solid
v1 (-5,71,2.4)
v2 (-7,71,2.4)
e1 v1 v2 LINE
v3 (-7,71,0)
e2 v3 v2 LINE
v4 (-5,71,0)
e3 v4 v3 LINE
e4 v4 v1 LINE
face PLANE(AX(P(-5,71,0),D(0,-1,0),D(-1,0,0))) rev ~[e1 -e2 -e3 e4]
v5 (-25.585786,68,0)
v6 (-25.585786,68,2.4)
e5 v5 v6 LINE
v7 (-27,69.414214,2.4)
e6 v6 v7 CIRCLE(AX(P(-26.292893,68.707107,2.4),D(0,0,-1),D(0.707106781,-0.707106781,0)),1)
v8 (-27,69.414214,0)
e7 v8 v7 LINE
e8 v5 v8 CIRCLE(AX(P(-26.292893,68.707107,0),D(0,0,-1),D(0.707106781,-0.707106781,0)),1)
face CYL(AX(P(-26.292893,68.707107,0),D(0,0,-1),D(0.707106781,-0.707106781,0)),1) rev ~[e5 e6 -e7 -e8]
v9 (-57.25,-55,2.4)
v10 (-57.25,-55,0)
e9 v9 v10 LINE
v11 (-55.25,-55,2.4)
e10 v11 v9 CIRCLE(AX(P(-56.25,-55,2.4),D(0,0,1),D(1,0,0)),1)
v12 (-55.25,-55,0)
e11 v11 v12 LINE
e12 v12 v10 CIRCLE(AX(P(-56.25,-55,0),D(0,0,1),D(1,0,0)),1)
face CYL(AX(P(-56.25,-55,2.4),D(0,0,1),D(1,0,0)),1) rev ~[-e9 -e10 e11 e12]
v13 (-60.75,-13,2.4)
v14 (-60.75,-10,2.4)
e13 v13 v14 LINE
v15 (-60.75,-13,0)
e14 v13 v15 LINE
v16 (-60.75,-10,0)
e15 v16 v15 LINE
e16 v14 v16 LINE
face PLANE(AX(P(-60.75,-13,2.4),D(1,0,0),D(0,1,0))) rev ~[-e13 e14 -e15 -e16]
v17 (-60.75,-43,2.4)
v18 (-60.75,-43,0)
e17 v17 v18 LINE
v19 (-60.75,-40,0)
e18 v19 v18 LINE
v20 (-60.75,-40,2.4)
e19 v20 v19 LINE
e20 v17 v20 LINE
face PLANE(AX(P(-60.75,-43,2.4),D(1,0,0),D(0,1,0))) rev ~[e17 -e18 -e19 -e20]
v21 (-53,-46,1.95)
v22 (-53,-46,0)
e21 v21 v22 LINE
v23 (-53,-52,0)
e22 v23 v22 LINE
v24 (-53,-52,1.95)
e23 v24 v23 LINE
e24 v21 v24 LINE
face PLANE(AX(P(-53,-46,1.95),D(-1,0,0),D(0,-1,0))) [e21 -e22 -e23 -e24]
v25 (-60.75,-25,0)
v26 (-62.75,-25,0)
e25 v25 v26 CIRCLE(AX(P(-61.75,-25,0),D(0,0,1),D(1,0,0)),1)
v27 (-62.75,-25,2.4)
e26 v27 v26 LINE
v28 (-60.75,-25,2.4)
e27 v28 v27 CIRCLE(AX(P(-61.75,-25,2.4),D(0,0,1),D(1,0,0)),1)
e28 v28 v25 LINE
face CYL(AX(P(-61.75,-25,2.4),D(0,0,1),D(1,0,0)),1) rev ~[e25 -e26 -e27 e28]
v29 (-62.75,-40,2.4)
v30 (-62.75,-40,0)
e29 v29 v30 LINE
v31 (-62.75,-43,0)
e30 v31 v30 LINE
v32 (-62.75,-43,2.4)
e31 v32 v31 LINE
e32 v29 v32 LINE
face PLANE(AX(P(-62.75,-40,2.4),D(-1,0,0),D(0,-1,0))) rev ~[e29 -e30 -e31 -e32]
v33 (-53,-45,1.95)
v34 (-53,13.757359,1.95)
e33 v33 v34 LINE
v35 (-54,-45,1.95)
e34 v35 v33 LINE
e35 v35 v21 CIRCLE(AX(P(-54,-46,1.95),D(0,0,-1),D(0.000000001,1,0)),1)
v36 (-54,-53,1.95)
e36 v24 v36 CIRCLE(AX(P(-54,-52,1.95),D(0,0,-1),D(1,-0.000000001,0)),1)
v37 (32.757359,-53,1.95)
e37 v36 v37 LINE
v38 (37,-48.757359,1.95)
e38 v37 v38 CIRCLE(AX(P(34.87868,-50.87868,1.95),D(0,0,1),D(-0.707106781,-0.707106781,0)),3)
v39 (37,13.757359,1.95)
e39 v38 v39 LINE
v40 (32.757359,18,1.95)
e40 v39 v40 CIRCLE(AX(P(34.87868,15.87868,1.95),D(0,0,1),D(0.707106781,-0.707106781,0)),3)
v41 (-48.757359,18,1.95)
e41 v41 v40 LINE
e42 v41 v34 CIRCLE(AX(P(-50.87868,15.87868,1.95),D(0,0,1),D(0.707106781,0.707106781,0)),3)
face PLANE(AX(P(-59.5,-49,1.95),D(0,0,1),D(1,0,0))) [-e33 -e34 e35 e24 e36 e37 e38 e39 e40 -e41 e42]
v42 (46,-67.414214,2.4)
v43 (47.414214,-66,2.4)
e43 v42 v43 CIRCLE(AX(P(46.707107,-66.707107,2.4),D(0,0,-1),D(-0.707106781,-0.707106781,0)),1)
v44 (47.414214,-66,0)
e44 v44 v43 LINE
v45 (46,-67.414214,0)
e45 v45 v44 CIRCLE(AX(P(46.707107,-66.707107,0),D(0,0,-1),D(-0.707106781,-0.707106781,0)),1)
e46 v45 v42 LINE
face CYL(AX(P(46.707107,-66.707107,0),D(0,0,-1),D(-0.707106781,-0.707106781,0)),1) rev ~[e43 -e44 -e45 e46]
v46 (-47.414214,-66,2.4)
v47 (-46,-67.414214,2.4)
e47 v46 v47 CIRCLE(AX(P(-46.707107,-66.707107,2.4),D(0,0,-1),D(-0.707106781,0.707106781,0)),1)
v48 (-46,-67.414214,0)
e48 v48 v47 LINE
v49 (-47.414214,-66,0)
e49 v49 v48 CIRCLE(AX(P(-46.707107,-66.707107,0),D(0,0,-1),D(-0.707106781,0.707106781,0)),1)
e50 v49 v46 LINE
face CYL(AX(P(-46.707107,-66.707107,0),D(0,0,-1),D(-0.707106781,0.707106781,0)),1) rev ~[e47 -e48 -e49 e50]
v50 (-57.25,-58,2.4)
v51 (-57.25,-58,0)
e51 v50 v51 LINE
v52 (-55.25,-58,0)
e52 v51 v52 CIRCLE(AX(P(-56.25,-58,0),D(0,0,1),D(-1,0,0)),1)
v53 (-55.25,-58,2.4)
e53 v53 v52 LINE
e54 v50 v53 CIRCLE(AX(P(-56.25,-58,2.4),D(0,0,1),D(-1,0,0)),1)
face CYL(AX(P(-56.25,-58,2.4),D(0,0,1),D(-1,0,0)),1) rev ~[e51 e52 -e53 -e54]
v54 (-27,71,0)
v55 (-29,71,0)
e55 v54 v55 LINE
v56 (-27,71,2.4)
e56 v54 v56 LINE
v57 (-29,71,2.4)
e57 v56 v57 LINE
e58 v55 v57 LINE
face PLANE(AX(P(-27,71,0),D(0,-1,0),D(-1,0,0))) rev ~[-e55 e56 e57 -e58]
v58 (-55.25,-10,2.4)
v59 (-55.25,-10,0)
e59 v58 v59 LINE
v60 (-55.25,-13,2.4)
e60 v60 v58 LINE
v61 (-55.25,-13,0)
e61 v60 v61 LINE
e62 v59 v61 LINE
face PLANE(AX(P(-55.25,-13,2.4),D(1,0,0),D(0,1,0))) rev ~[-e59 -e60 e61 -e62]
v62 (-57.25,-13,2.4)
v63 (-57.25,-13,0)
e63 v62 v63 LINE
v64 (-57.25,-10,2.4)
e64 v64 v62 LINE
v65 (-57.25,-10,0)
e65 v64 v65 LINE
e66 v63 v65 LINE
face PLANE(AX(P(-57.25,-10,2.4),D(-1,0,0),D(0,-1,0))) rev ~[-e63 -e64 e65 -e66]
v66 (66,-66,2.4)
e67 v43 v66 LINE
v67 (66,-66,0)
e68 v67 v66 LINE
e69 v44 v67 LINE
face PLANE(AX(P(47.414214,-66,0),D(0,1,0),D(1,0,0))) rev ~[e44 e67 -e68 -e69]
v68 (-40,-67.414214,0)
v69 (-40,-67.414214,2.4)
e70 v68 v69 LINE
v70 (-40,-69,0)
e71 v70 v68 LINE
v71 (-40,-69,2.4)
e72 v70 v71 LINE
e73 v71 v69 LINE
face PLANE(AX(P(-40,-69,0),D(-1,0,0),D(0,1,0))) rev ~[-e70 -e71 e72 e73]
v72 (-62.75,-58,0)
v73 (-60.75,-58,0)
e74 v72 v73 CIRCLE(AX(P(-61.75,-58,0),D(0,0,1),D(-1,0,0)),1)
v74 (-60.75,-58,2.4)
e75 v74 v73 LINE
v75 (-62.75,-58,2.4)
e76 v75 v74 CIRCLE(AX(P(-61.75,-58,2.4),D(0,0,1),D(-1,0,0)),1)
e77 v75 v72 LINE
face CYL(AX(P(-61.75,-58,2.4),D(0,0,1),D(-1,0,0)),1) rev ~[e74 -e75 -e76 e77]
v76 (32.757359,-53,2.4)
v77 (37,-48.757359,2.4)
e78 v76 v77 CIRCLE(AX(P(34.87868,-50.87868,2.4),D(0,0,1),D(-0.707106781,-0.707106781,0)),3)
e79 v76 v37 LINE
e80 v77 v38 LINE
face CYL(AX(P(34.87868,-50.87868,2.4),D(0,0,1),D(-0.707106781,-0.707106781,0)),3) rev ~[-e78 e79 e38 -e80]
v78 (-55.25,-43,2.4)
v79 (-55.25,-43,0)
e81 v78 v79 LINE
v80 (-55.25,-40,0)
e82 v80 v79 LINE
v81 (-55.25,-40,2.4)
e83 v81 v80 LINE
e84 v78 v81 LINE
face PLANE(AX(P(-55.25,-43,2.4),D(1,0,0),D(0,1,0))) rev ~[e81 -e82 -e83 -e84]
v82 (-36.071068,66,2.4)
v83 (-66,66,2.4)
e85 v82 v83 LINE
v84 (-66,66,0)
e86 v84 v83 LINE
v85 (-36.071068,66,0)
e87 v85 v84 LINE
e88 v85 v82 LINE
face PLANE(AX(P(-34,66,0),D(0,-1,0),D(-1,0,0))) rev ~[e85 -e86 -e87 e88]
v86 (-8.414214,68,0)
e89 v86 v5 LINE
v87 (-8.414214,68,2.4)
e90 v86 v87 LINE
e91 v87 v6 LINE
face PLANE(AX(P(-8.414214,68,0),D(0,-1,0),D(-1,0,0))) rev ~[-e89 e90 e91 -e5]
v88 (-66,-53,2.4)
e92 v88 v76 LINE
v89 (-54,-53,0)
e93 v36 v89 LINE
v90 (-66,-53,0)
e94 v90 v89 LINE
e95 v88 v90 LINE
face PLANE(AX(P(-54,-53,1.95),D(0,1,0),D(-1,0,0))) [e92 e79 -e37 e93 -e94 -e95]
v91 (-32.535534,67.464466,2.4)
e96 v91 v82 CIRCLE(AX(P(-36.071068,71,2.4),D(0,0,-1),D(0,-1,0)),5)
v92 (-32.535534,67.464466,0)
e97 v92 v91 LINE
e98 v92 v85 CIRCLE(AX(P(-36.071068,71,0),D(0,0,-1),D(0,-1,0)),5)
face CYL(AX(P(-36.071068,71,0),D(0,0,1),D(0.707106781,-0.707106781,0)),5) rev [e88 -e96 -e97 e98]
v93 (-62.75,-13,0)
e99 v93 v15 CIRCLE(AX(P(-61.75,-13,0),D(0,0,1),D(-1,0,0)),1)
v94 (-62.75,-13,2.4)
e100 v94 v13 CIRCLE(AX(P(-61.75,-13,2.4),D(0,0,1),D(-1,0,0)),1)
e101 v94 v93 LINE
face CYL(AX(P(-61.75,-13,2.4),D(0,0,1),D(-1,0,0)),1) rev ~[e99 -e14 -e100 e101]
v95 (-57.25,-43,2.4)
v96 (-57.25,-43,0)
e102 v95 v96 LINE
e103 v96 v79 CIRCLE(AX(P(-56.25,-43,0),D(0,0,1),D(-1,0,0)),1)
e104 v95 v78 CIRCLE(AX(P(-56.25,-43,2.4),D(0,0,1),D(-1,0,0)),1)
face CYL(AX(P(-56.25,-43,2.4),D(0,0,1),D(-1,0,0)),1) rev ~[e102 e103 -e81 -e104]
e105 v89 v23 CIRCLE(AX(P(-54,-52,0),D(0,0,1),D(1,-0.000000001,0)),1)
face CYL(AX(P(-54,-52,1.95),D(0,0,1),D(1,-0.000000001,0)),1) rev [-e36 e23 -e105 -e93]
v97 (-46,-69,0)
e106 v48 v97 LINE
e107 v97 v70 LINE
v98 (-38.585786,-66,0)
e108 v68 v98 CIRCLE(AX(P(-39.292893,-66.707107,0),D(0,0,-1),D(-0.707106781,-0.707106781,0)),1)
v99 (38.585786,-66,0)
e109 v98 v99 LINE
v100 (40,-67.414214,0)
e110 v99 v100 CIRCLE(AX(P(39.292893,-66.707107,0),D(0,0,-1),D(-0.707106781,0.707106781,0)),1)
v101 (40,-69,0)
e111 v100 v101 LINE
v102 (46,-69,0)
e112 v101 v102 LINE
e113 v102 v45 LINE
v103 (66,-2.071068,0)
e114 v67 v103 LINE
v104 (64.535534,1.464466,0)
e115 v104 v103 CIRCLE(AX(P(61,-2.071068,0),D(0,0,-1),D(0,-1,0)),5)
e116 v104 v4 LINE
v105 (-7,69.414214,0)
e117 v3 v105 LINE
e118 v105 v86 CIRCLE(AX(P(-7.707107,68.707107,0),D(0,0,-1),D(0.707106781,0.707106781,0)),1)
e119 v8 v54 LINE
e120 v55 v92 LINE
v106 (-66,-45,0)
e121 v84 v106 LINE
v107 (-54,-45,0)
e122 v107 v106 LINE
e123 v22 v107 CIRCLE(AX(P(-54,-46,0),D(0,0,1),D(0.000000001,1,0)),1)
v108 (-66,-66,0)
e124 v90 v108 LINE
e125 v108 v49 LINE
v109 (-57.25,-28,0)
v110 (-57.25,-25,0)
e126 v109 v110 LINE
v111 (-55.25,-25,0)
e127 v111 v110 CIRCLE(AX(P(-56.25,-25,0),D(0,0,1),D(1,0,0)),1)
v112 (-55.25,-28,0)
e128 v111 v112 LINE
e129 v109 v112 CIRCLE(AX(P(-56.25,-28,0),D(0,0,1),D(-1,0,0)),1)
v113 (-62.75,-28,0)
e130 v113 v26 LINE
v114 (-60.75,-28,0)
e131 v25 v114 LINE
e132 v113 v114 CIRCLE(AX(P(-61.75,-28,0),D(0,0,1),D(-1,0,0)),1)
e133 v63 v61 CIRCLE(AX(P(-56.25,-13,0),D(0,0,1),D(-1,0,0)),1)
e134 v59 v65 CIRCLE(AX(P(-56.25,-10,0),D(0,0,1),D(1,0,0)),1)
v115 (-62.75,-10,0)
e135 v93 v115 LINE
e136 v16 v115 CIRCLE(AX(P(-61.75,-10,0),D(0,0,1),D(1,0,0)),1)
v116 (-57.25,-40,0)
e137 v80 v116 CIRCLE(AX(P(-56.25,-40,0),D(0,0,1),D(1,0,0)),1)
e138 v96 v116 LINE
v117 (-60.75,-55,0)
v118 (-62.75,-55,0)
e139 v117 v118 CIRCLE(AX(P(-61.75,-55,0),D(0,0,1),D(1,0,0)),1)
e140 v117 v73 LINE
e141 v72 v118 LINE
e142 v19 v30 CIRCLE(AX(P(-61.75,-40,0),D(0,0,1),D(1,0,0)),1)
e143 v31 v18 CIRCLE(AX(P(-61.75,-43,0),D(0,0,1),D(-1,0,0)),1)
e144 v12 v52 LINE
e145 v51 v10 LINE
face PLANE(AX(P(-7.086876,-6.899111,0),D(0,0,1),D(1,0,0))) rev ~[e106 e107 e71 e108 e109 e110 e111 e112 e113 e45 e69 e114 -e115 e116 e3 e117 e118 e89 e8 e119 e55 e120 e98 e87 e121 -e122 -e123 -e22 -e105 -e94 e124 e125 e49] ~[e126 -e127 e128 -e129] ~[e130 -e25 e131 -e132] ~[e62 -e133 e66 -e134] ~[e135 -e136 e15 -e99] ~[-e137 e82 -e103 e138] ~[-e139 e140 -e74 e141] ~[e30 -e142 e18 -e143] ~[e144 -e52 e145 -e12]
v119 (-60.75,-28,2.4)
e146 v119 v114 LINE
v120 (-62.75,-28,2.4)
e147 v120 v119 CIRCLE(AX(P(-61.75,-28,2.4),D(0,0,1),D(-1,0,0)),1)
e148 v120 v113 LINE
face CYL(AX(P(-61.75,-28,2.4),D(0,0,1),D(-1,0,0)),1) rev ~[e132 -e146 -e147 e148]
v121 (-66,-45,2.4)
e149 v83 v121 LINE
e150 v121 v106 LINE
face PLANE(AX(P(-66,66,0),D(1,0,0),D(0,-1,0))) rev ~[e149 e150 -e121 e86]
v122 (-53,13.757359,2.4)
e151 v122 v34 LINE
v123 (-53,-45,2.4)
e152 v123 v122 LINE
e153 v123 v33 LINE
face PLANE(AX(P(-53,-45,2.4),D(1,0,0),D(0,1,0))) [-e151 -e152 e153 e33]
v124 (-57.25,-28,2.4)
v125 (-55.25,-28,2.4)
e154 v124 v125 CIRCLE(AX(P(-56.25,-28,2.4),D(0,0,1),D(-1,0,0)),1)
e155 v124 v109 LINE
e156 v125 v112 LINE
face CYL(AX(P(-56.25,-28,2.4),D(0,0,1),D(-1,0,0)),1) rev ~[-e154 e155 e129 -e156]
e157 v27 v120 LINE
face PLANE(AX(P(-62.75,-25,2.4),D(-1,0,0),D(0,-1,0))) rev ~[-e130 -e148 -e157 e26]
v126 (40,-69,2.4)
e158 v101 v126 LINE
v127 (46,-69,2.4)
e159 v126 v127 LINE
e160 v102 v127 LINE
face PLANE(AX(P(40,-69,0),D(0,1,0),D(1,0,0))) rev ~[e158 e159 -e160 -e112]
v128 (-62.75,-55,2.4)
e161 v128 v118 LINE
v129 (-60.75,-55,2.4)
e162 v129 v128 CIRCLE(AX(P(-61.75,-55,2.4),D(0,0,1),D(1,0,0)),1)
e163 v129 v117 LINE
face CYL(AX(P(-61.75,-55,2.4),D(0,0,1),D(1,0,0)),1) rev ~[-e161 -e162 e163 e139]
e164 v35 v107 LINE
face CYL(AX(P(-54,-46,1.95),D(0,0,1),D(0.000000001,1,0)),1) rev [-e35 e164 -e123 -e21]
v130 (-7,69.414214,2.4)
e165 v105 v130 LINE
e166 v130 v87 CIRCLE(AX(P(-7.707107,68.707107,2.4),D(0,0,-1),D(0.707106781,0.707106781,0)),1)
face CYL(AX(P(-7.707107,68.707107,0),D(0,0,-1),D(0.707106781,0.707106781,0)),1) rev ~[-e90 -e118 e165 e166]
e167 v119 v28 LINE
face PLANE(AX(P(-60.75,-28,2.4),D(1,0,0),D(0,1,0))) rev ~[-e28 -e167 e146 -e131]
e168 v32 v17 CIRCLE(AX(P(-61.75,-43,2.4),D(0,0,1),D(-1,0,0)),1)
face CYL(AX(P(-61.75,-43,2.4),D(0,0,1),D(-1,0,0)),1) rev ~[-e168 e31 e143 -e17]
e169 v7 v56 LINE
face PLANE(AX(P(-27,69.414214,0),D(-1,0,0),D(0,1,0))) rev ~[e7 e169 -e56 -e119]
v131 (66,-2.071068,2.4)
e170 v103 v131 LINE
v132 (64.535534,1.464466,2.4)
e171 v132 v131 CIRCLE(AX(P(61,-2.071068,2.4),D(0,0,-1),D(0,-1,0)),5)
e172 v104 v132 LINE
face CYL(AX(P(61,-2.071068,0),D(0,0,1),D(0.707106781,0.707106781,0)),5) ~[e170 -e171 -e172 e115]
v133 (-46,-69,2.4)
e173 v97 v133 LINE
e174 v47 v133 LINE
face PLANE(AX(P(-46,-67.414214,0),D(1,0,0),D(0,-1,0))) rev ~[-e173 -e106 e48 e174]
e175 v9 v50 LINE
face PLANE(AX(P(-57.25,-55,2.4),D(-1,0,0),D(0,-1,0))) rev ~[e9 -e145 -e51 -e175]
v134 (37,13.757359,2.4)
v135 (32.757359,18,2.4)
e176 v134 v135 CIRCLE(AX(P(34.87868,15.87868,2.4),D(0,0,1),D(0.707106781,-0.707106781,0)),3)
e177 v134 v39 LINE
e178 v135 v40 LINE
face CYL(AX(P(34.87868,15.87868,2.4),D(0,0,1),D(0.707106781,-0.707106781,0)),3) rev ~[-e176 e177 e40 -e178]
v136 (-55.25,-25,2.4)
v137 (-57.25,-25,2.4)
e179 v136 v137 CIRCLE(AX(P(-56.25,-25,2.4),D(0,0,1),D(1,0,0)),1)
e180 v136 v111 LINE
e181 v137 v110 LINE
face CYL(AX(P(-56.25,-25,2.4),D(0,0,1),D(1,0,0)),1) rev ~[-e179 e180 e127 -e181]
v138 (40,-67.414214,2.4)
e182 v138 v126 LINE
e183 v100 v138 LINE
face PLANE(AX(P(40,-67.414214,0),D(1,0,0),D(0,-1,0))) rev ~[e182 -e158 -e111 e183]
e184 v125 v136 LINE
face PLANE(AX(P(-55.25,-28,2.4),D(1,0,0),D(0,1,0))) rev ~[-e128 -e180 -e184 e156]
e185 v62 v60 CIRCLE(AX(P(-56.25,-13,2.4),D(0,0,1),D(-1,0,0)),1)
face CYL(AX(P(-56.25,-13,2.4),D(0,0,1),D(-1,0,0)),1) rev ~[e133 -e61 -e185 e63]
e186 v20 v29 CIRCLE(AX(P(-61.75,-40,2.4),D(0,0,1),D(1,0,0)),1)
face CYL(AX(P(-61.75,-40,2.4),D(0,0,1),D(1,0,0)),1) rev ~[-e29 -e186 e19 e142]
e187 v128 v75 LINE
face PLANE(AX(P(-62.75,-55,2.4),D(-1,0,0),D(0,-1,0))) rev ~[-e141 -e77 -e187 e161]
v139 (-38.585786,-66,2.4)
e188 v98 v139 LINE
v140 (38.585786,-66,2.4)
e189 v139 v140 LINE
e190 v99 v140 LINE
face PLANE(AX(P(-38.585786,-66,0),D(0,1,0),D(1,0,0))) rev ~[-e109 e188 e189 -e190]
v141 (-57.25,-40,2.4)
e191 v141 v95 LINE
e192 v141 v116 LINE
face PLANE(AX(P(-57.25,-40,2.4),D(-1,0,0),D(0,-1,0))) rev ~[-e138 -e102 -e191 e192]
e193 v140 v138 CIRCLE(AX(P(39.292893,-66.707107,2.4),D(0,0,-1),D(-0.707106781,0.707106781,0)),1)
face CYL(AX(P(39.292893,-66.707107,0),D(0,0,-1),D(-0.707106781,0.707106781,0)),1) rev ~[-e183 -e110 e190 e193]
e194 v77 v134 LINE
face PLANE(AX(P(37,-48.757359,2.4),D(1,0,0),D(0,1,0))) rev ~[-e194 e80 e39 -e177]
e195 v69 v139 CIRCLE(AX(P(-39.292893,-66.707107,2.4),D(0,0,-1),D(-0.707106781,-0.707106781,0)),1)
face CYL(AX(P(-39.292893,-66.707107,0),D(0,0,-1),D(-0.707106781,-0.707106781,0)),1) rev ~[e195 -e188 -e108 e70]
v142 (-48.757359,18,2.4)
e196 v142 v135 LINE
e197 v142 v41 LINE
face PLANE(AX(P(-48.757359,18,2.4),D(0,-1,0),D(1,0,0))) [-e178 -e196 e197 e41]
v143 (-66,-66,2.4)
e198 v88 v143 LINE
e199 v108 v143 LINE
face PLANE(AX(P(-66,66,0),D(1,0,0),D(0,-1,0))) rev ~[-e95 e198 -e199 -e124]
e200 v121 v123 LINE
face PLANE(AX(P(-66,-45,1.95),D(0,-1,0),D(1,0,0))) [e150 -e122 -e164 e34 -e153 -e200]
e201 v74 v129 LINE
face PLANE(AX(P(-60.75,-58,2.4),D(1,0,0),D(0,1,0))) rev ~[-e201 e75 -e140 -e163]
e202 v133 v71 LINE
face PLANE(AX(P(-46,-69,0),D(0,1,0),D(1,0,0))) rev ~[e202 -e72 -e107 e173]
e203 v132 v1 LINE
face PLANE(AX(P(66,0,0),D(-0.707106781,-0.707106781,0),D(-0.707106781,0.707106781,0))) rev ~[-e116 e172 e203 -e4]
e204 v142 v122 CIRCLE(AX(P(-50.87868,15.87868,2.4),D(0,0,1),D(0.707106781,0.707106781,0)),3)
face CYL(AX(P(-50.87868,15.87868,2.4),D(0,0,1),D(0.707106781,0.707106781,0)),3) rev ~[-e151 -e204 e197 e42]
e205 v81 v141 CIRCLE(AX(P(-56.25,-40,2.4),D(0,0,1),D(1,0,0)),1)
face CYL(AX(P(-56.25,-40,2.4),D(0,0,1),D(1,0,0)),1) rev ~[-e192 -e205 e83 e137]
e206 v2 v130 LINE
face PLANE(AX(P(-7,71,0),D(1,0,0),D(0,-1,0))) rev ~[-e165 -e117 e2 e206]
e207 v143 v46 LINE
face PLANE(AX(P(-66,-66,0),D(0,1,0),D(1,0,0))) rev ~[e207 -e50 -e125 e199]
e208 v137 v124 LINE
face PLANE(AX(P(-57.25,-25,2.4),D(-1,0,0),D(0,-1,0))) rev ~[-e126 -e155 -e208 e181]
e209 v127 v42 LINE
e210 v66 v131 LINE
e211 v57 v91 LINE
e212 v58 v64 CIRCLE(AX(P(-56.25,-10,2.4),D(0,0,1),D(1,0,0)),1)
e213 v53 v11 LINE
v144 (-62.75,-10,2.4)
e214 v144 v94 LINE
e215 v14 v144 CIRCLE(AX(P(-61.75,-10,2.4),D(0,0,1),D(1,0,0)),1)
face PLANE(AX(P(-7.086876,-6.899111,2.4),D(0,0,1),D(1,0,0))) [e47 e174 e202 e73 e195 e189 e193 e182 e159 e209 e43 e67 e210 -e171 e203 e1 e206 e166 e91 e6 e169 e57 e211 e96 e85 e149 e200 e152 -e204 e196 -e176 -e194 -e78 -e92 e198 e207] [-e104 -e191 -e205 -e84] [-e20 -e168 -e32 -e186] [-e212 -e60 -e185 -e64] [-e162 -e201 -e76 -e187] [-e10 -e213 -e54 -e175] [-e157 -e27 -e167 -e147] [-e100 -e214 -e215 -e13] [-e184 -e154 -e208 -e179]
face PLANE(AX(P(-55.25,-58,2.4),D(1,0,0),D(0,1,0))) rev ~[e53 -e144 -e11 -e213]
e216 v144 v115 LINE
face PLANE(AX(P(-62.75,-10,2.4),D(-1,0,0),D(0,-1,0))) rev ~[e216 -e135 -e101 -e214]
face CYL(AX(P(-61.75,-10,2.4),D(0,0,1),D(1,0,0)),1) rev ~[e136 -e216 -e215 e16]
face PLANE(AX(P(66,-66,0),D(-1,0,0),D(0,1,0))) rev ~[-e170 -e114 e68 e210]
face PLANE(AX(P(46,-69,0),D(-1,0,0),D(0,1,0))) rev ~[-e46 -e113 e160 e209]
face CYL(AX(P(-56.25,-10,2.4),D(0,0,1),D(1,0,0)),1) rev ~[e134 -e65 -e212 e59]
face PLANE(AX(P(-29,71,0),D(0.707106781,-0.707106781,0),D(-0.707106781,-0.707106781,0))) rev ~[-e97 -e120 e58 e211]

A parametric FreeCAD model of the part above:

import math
import FreeCAD as App
import Part
import Sketcher
Q = App.Units.Quantity


def edges_at(feature, points):
    """Names of the edges that pass closest to the given points."""
    edges = feature.Shape.Edges
    near = lambda p: min(range(len(edges)), key=lambda i: edges[i].distToShape(Part.Vertex(*p))[0])
    return sorted({f"Edge{near(p) + 1}" for p in points})

doc = App.newDocument("Part")
body = doc.addObject("PartDesign::Body", "Body")

# Sketch on XY plane
sketch1 = body.newObject("Sketcher::SketchObject", "Sketch")
sketch1.AttachmentSupport = (doc.getObject("XY_Plane"), [""])
sketch1.MapMode = "FlatFace"
sketch1.addGeometry([
    Part.LineSegment(App.Vector(66, 0, 0), App.Vector(-5, 71, 0)),  # 0
    Part.LineSegment(App.Vector(-5, 71, 0), App.Vector(-7, 71, 0)),  # 1
    Part.LineSegment(App.Vector(-7, 71, 0), App.Vector(-7, 69.4, 0)),  # 2
    Part.ArcOfCircle(Part.Circle(App.Vector(-7.7, 68.7, 0), App.Vector(0, 0, 1), 1), math.radians(-135), math.radians(45)),  # 3
    Part.LineSegment(App.Vector(-8.4, 68, 0), App.Vector(-25.6, 68, 0)),  # 4
    Part.ArcOfCircle(Part.Circle(App.Vector(-26.3, 68.7, 0), App.Vector(0, 0, 1), 1), math.radians(135), math.radians(315)),  # 5
    Part.LineSegment(App.Vector(-27, 69.4, 0), App.Vector(-27, 71, 0)),  # 6
    Part.LineSegment(App.Vector(-27, 71, 0), App.Vector(-29, 71, 0)),  # 7
    Part.LineSegment(App.Vector(-29, 71, 0), App.Vector(-34, 66, 0)),  # 8
    Part.LineSegment(App.Vector(-34, 66, 0), App.Vector(-66, 66, 0)),  # 9
    Part.LineSegment(App.Vector(-66, 66, 0), App.Vector(-66, -66, 0)),  # 10
    Part.LineSegment(App.Vector(-66, -66, 0), App.Vector(-47.4, -66, 0)),  # 11
    Part.ArcOfCircle(Part.Circle(App.Vector(-46.7, -66.7, 0), App.Vector(0, 0, 1), 1), math.radians(-45), math.radians(135)),  # 12
    Part.LineSegment(App.Vector(-46, -67.4, 0), App.Vector(-46, -69, 0)),  # 13
    Part.LineSegment(App.Vector(-46, -69, 0), App.Vector(-40, -69, 0)),  # 14
    Part.LineSegment(App.Vector(-40, -69, 0), App.Vector(-40, -67.4, 0)),  # 15
    Part.ArcOfCircle(Part.Circle(App.Vector(-39.3, -66.7, 0), App.Vector(0, 0, 1), 1), math.radians(45), math.radians(225)),  # 16
    Part.LineSegment(App.Vector(-38.6, -66, 0), App.Vector(38.6, -66, 0)),  # 17
    Part.ArcOfCircle(Part.Circle(App.Vector(39.3, -66.7, 0), App.Vector(0, 0, 1), 1), math.radians(-45), math.radians(135)),  # 18
    Part.LineSegment(App.Vector(40, -67.4, 0), App.Vector(40, -69, 0)),  # 19
    Part.LineSegment(App.Vector(40, -69, 0), App.Vector(46, -69, 0)),  # 20
    Part.LineSegment(App.Vector(46, -69, 0), App.Vector(46, -67.4, 0)),  # 21
    Part.ArcOfCircle(Part.Circle(App.Vector(46.7, -66.7, 0), App.Vector(0, 0, 1), 1), math.radians(45), math.radians(225)),  # 22
    Part.LineSegment(App.Vector(47.4, -66, 0), App.Vector(66, -66, 0)),  # 23
    Part.LineSegment(App.Vector(66, -66, 0), App.Vector(66, 0, 0)),  # 24
], False)
sketch1.addConstraint([
    Sketcher.Constraint("Coincident", 0, 2, 1, 1),
    Sketcher.Constraint("Coincident", 1, 2, 2, 1),
    Sketcher.Constraint("Coincident", 2, 2, 3, 2),
    Sketcher.Constraint("Coincident", 3, 1, 4, 1),
    Sketcher.Constraint("Coincident", 4, 2, 5, 2),
    Sketcher.Constraint("Coincident", 5, 1, 6, 1),
    Sketcher.Constraint("Coincident", 6, 2, 7, 1),
    Sketcher.Constraint("Coincident", 7, 2, 8, 1),
    Sketcher.Constraint("Coincident", 8, 2, 9, 1),
    Sketcher.Constraint("Coincident", 9, 2, 10, 1),
    Sketcher.Constraint("Coincident", 10, 2, 11, 1),
    Sketcher.Constraint("Coincident", 11, 2, 12, 2),
    Sketcher.Constraint("Coincident", 12, 1, 13, 1),
    Sketcher.Constraint("Coincident", 13, 2, 14, 1),
    Sketcher.Constraint("Coincident", 14, 2, 15, 1),
    Sketcher.Constraint("Coincident", 15, 2, 16, 2),
    Sketcher.Constraint("Coincident", 16, 1, 17, 1),
    Sketcher.Constraint("Coincident", 17, 2, 18, 2),
    Sketcher.Constraint("Coincident", 18, 1, 19, 1),
    Sketcher.Constraint("Coincident", 19, 2, 20, 1),
    Sketcher.Constraint("Coincident", 20, 2, 21, 1),
    Sketcher.Constraint("Coincident", 21, 2, 22, 2),
    Sketcher.Constraint("Coincident", 22, 1, 23, 1),
    Sketcher.Constraint("Coincident", 23, 2, 24, 1),
    Sketcher.Constraint("Coincident", 24, 2, 0, 1),
    Sketcher.Constraint("Horizontal", 1),
    Sketcher.Constraint("Vertical", 2),
    Sketcher.Constraint("Horizontal", 4),
    Sketcher.Constraint("Vertical", 6),
    Sketcher.Constraint("Horizontal", 7),
    Sketcher.Constraint("Horizontal", 9),
    Sketcher.Constraint("Vertical", 10),
    Sketcher.Constraint("Horizontal", 11),
    Sketcher.Constraint("Vertical", 13),
    Sketcher.Constraint("Horizontal", 14),
    Sketcher.Constraint("Vertical", 15),
    Sketcher.Constraint("Horizontal", 17),
    Sketcher.Constraint("Vertical", 19),
    Sketcher.Constraint("Horizontal", 20),
    Sketcher.Constraint("Vertical", 21),
    Sketcher.Constraint("Horizontal", 23),
    Sketcher.Constraint("Vertical", 24),
    Sketcher.Constraint("Equal", 3, 5),
    Sketcher.Constraint("Equal", 5, 12),
    Sketcher.Constraint("Equal", 12, 16),
    Sketcher.Constraint("Equal", 16, 18),
    Sketcher.Constraint("Equal", 18, 22),
    Sketcher.Constraint("Symmetric", 9, 2, 23, 2, -1, 1),
    Sketcher.Constraint("Symmetric", 16, 3, 18, 3, -2),
    Sketcher.Constraint("Symmetric", 12, 3, 22, 3, -2),
    Sketcher.Constraint("Symmetric", 14, 2, 19, 2, -2),
    Sketcher.Constraint("PointOnObject", 24, 2, -1),
    Sketcher.Constraint("Perpendicular", 0, 8),
    Sketcher.Constraint("Horizontal", 3, 3, 5, 3),
    Sketcher.Constraint("Horizontal", 12, 3, 16, 3),
    Sketcher.Constraint("Horizontal", 2, 2, 5, 1),
    Sketcher.Constraint("Horizontal", 1, 2, 6, 2),
    Sketcher.Constraint("Horizontal", 12, 1, 15, 2),
    Sketcher.Constraint("Horizontal", 11, 2, 16, 1),
    Sketcher.Constraint("Horizontal", 18, 1, 21, 2),
    Sketcher.Constraint("Horizontal", 17, 2, 22, 1),
    Sketcher.Constraint("Equal", 1, 7),
    Sketcher.Constraint("Equal", 6, 13),
    Sketcher.Constraint("Radius", 3, 1.0),
    Sketcher.Constraint("DistanceX", 1, 2, 1, 1, 2.0),
    Sketcher.Constraint("DistanceX", 9, 2, 9, 1, 32.0),
    Sketcher.Constraint("DistanceX", 14, 1, 14, 2, 6.0),
    Sketcher.Constraint("DistanceY", 10, 2, 10, 1, 132.0),
    Sketcher.Constraint("Angle", 0, Q("135 deg")),
    Sketcher.Constraint("DistanceX", 0, 2, -1, 1, 5.0),
    Sketcher.Constraint("DistanceY", -1, 1, 0, 2, 71.0),
    Sketcher.Constraint("DistanceY", -1, 1, 3, 1, 68.0),
    Sketcher.Constraint("DistanceX", 12, 1, -1, 1, 46.0),
    Sketcher.Constraint("DistanceY", 13, 2, -1, 1, 69.0),
    Sketcher.Constraint("DistanceX", 12, 3, 3, 3, 39.0),
    Sketcher.Constraint("DistanceX", 4, 2, 4, 1, 17.171573),
    Sketcher.Constraint("DistanceY", 16, 3, 2, 2, 136.12132),
])
pad1 = body.newObject("PartDesign::Pad", "Pad")
pad1.Profile = sketch1
pad1.Length = 2.4

# Sketch on XY plane
sketch2 = body.newObject("Sketcher::SketchObject", "Sketch001")
sketch2.AttachmentSupport = (doc.getObject("XY_Plane"), [""])
sketch2.MapMode = "FlatFace"
sketch2.AttachmentOffset = App.Placement(App.Vector(0, 0, 2.4), App.Rotation())
sketch2.addGeometry([
    Part.LineSegment(App.Vector(-60.8, -58, 0), App.Vector(-60.8, -55, 0)),
    Part.ArcOfCircle(Part.Circle(App.Vector(-61.8, -55, 0), App.Vector(0, 0, 1), 1), math.radians(0), math.radians(180)),
    Part.LineSegment(App.Vector(-62.8, -55, 0), App.Vector(-62.8, -58, 0)),
    Part.ArcOfCircle(Part.Circle(App.Vector(-61.8, -58, 0), App.Vector(0, 0, 1), 1), math.radians(180), math.radians(360)),
], False)
sketch2.addConstraint([
    Sketcher.Constraint("Tangent", 0, 2, 1, 1),
    Sketcher.Constraint("Tangent", 1, 2, 2, 1),
    Sketcher.Constraint("Tangent", 2, 2, 3, 1),
    Sketcher.Constraint("Tangent", 3, 2, 0, 1),
    Sketcher.Constraint("Vertical", 0),
    Sketcher.Constraint("Vertical", 2),
    Sketcher.Constraint("Radius", 1, 1.0),
    Sketcher.Constraint("DistanceY", 0, 1, 0, 2, 3.0),
    Sketcher.Constraint("DistanceY", 1, 3, -1, 1, 55.0),
    Sketcher.Constraint("DistanceX", 1, 3, -1, 1, 61.75),
])
pocket1 = body.newObject("PartDesign::Pocket", "Pocket")
pocket1.Profile = sketch2
pocket1.Type = "UpToFirst"

# Sketch on XY plane
sketch3 = body.newObject("Sketcher::SketchObject", "Sketch002")
sketch3.AttachmentSupport = (doc.getObject("XY_Plane"), [""])
sketch3.MapMode = "FlatFace"
sketch3.AttachmentOffset = App.Placement(App.Vector(0, 0, 2.4), App.Rotation())
sketch3.addGeometry([
    Part.ArcOfCircle(Part.Circle(App.Vector(-56.2, -55, 0), App.Vector(0, 0, 1), 1), math.radians(0), math.radians(180)),
    Part.LineSegment(App.Vector(-57.2, -55, 0), App.Vector(-57.2, -58, 0)),
    Part.ArcOfCircle(Part.Circle(App.Vector(-56.2, -58, 0), App.Vector(0, 0, 1), 1), math.radians(180), math.radians(360)),
    Part.LineSegment(App.Vector(-55.2, -58, 0), App.Vector(-55.2, -55, 0)),
], False)
sketch3.addConstraint([
    Sketcher.Constraint("Tangent", 0, 2, 1, 1),
    Sketcher.Constraint("Tangent", 1, 2, 2, 1),
    Sketcher.Constraint("Tangent", 2, 2, 3, 1),
    Sketcher.Constraint("Tangent", 3, 2, 0, 1),
    Sketcher.Constraint("Vertical", 1),
    Sketcher.Constraint("Vertical", 3),
    Sketcher.Constraint("Radius", 0, 1.0),
    Sketcher.Constraint("DistanceY", 1, 2, 1, 1, 3.0),
    Sketcher.Constraint("DistanceY", 0, 3, -1, 1, 55.0),
    Sketcher.Constraint("DistanceX", 0, 3, -1, 1, 56.25),
])
pocket2 = body.newObject("PartDesign::Pocket", "Pocket001")
pocket2.Profile = sketch3
pocket2.Type = "UpToFirst"

# Sketch on XY plane
sketch4 = body.newObject("Sketcher::SketchObject", "Sketch003")
sketch4.AttachmentSupport = (doc.getObject("XY_Plane"), [""])
sketch4.MapMode = "FlatFace"
sketch4.AttachmentOffset = App.Placement(App.Vector(0, 0, 2.4), App.Rotation())
sketch4.addGeometry([
    Part.ArcOfCircle(Part.Circle(App.Vector(-56.2, -40, 0), App.Vector(0, 0, 1), 1), math.radians(0), math.radians(180)),
    Part.LineSegment(App.Vector(-57.2, -40, 0), App.Vector(-57.2, -43, 0)),
    Part.ArcOfCircle(Part.Circle(App.Vector(-56.2, -43, 0), App.Vector(0, 0, 1), 1), math.radians(180), math.radians(360)),
    Part.LineSegment(App.Vector(-55.2, -43, 0), App.Vector(-55.2, -40, 0)),
], False)
sketch4.addConstraint([
    Sketcher.Constraint("Tangent", 0, 2, 1, 1),
    Sketcher.Constraint("Tangent", 1, 2, 2, 1),
    Sketcher.Constraint("Tangent", 2, 2, 3, 1),
    Sketcher.Constraint("Tangent", 3, 2, 0, 1),
    Sketcher.Constraint("Vertical", 1),
    Sketcher.Constraint("Vertical", 3),
    Sketcher.Constraint("Radius", 0, 1.0),
    Sketcher.Constraint("DistanceY", 1, 2, 1, 1, 3.0),
    Sketcher.Constraint("DistanceY", 0, 3, -1, 1, 40.0),
    Sketcher.Constraint("DistanceX", 0, 3, -1, 1, 56.25),
])
pocket3 = body.newObject("PartDesign::Pocket", "Pocket002")
pocket3.Profile = sketch4
pocket3.Type = "UpToFirst"

# Sketch on XY plane
sketch5 = body.newObject("Sketcher::SketchObject", "Sketch004")
sketch5.AttachmentSupport = (doc.getObject("XY_Plane"), [""])
sketch5.MapMode = "FlatFace"
sketch5.AttachmentOffset = App.Placement(App.Vector(0, 0, 2.4), App.Rotation())
sketch5.addGeometry([
    Part.LineSegment(App.Vector(-60.8, -43, 0), App.Vector(-60.8, -40, 0)),
    Part.ArcOfCircle(Part.Circle(App.Vector(-61.8, -40, 0), App.Vector(0, 0, 1), 1), math.radians(0), math.radians(180)),
    Part.LineSegment(App.Vector(-62.8, -40, 0), App.Vector(-62.8, -43, 0)),
    Part.ArcOfCircle(Part.Circle(App.Vector(-61.8, -43, 0), App.Vector(0, 0, 1), 1), math.radians(180), math.radians(360)),
], False)
sketch5.addConstraint([
    Sketcher.Constraint("Tangent", 0, 2, 1, 1),
    Sketcher.Constraint("Tangent", 1, 2, 2, 1),
    Sketcher.Constraint("Tangent", 2, 2, 3, 1),
    Sketcher.Constraint("Tangent", 3, 2, 0, 1),
    Sketcher.Constraint("Vertical", 0),
    Sketcher.Constraint("Vertical", 2),
    Sketcher.Constraint("Radius", 1, 1.0),
    Sketcher.Constraint("DistanceY", 0, 1, 0, 2, 3.0),
    Sketcher.Constraint("DistanceY", 1, 3, -1, 1, 40.0),
    Sketcher.Constraint("DistanceX", 1, 3, -1, 1, 61.75),
])
pocket4 = body.newObject("PartDesign::Pocket", "Pocket003")
pocket4.Profile = sketch5
pocket4.Type = "UpToFirst"

# Sketch on XY plane
sketch6 = body.newObject("Sketcher::SketchObject", "Sketch005")
sketch6.AttachmentSupport = (doc.getObject("XY_Plane"), [""])
sketch6.MapMode = "FlatFace"
sketch6.AttachmentOffset = App.Placement(App.Vector(0, 0, 2.4), App.Rotation())
sketch6.addGeometry([
    Part.LineSegment(App.Vector(-60.8, -28, 0), App.Vector(-60.8, -25, 0)),
    Part.ArcOfCircle(Part.Circle(App.Vector(-61.8, -25, 0), App.Vector(0, 0, 1), 1), math.radians(0), math.radians(180)),
    Part.LineSegment(App.Vector(-62.8, -25, 0), App.Vector(-62.8, -28, 0)),
    Part.ArcOfCircle(Part.Circle(App.Vector(-61.8, -28, 0), App.Vector(0, 0, 1), 1), math.radians(180), math.radians(360)),
], False)
sketch6.addConstraint([
    Sketcher.Constraint("Tangent", 0, 2, 1, 1),
    Sketcher.Constraint("Tangent", 1, 2, 2, 1),
    Sketcher.Constraint("Tangent", 2, 2, 3, 1),
    Sketcher.Constraint("Tangent", 3, 2, 0, 1),
    Sketcher.Constraint("Vertical", 0),
    Sketcher.Constraint("Vertical", 2),
    Sketcher.Constraint("Radius", 1, 1.0),
    Sketcher.Constraint("DistanceY", 0, 1, 0, 2, 3.0),
    Sketcher.Constraint("DistanceY", 1, 3, -1, 1, 25.0),
    Sketcher.Constraint("DistanceX", 1, 3, -1, 1, 61.75),
])
pocket5 = body.newObject("PartDesign::Pocket", "Pocket004")
pocket5.Profile = sketch6
pocket5.Type = "UpToFirst"

# Sketch on XY plane
sketch7 = body.newObject("Sketcher::SketchObject", "Sketch006")
sketch7.AttachmentSupport = (doc.getObject("XY_Plane"), [""])
sketch7.MapMode = "FlatFace"
sketch7.AttachmentOffset = App.Placement(App.Vector(0, 0, 2.4), App.Rotation())
sketch7.addGeometry([
    Part.ArcOfCircle(Part.Circle(App.Vector(-56.2, -25, 0), App.Vector(0, 0, 1), 1), math.radians(0), math.radians(180)),
    Part.LineSegment(App.Vector(-57.2, -25, 0), App.Vector(-57.2, -28, 0)),
    Part.ArcOfCircle(Part.Circle(App.Vector(-56.2, -28, 0), App.Vector(0, 0, 1), 1), math.radians(180), math.radians(360)),
    Part.LineSegment(App.Vector(-55.2, -28, 0), App.Vector(-55.2, -25, 0)),
], False)
sketch7.addConstraint([
    Sketcher.Constraint("Tangent", 0, 2, 1, 1),
    Sketcher.Constraint("Tangent", 1, 2, 2, 1),
    Sketcher.Constraint("Tangent", 2, 2, 3, 1),
    Sketcher.Constraint("Tangent", 3, 2, 0, 1),
    Sketcher.Constraint("Vertical", 1),
    Sketcher.Constraint("Vertical", 3),
    Sketcher.Constraint("Radius", 0, 1.0),
    Sketcher.Constraint("DistanceY", 1, 2, 1, 1, 3.0),
    Sketcher.Constraint("DistanceY", 0, 3, -1, 1, 25.0),
    Sketcher.Constraint("DistanceX", 0, 3, -1, 1, 56.25),
])
pocket6 = body.newObject("PartDesign::Pocket", "Pocket005")
pocket6.Profile = sketch7
pocket6.Type = "UpToFirst"

# Sketch on XY plane
sketch8 = body.newObject("Sketcher::SketchObject", "Sketch007")
sketch8.AttachmentSupport = (doc.getObject("XY_Plane"), [""])
sketch8.MapMode = "FlatFace"
sketch8.AttachmentOffset = App.Placement(App.Vector(0, 0, 2.4), App.Rotation())
sketch8.addGeometry([
    Part.LineSegment(App.Vector(-60.8, -13, 0), App.Vector(-60.8, -10, 0)),
    Part.ArcOfCircle(Part.Circle(App.Vector(-61.8, -10, 0), App.Vector(0, 0, 1), 1), math.radians(0), math.radians(180)),
    Part.LineSegment(App.Vector(-62.8, -10, 0), App.Vector(-62.8, -13, 0)),
    Part.ArcOfCircle(Part.Circle(App.Vector(-61.8, -13, 0), App.Vector(0, 0, 1), 1), math.radians(180), math.radians(360)),
], False)
sketch8.addConstraint([
    Sketcher.Constraint("Tangent", 0, 2, 1, 1),
    Sketcher.Constraint("Tangent", 1, 2, 2, 1),
    Sketcher.Constraint("Tangent", 2, 2, 3, 1),
    Sketcher.Constraint("Tangent", 3, 2, 0, 1),
    Sketcher.Constraint("Vertical", 0),
    Sketcher.Constraint("Vertical", 2),
    Sketcher.Constraint("Radius", 1, 1.0),
    Sketcher.Constraint("DistanceY", 0, 1, 0, 2, 3.0),
    Sketcher.Constraint("DistanceY", 1, 3, -1, 1, 10.0),
    Sketcher.Constraint("DistanceX", 1, 3, -1, 1, 61.75),
])
pocket7 = body.newObject("PartDesign::Pocket", "Pocket006")
pocket7.Profile = sketch8
pocket7.Type = "UpToFirst"

# Sketch on XY plane
sketch9 = body.newObject("Sketcher::SketchObject", "Sketch008")
sketch9.AttachmentSupport = (doc.getObject("XY_Plane"), [""])
sketch9.MapMode = "FlatFace"
sketch9.AttachmentOffset = App.Placement(App.Vector(0, 0, 2.4), App.Rotation())
sketch9.addGeometry([
    Part.ArcOfCircle(Part.Circle(App.Vector(-56.2, -10, 0), App.Vector(0, 0, 1), 1), math.radians(0), math.radians(180)),
    Part.LineSegment(App.Vector(-57.2, -10, 0), App.Vector(-57.2, -13, 0)),
    Part.ArcOfCircle(Part.Circle(App.Vector(-56.2, -13, 0), App.Vector(0, 0, 1), 1), math.radians(180), math.radians(360)),
    Part.LineSegment(App.Vector(-55.2, -13, 0), App.Vector(-55.2, -10, 0)),
], False)
sketch9.addConstraint([
    Sketcher.Constraint("Tangent", 0, 2, 1, 1),
    Sketcher.Constraint("Tangent", 1, 2, 2, 1),
    Sketcher.Constraint("Tangent", 2, 2, 3, 1),
    Sketcher.Constraint("Tangent", 3, 2, 0, 1),
    Sketcher.Constraint("Vertical", 1),
    Sketcher.Constraint("Vertical", 3),
    Sketcher.Constraint("Radius", 0, 1.0),
    Sketcher.Constraint("DistanceY", 1, 2, 1, 1, 3.0),
    Sketcher.Constraint("DistanceY", 0, 3, -1, 1, 10.0),
    Sketcher.Constraint("DistanceX", 0, 3, -1, 1, 56.25),
])
pocket8 = body.newObject("PartDesign::Pocket", "Pocket007")
pocket8.Profile = sketch9
pocket8.Type = "UpToFirst"

# Sketch on XY plane
sketch10 = body.newObject("Sketcher::SketchObject", "Sketch009")
sketch10.AttachmentSupport = (doc.getObject("XY_Plane"), [""])
sketch10.MapMode = "FlatFace"
sketch10.AttachmentOffset = App.Placement(App.Vector(0, 0, 2.4), App.Rotation())
sketch10.addGeometry([
    Part.LineSegment(App.Vector(-66, -45, 0), App.Vector(-66, -53, 0)),  # 0
    Part.LineSegment(App.Vector(-66, -53, 0), App.Vector(32.8, -53, 0)),  # 1
    Part.ArcOfCircle(Part.Circle(App.Vector(34.9, -50.9, 0), App.Vector(0, 0, 1), 3), math.radians(-135), math.radians(45)),  # 2
    Part.LineSegment(App.Vector(37, -48.8, 0), App.Vector(37, 13.8, 0)),  # 3
    Part.ArcOfCircle(Part.Circle(App.Vector(34.9, 15.9, 0), App.Vector(0, 0, 1), 3), math.radians(-45), math.radians(135)),  # 4
    Part.LineSegment(App.Vector(32.8, 18, 0), App.Vector(-48.8, 18, 0)),  # 5
    Part.ArcOfCircle(Part.Circle(App.Vector(-50.9, 15.9, 0), App.Vector(0, 0, 1), 3), math.radians(45), math.radians(225)),  # 6
    Part.LineSegment(App.Vector(-53, 13.8, 0), App.Vector(-53, -45, 0)),  # 7
    Part.LineSegment(App.Vector(-53, -45, 0), App.Vector(-66, -45, 0)),  # 8
], False)
sketch10.addConstraint([
    Sketcher.Constraint("Coincident", 0, 2, 1, 1),
    Sketcher.Constraint("Coincident", 1, 2, 2, 1),
    Sketcher.Constraint("Coincident", 2, 2, 3, 1),
    Sketcher.Constraint("Coincident", 3, 2, 4, 1),
    Sketcher.Constraint("Coincident", 4, 2, 5, 1),
    Sketcher.Constraint("Coincident", 5, 2, 6, 1),
    Sketcher.Constraint("Coincident", 6, 2, 7, 1),
    Sketcher.Constraint("Coincident", 7, 2, 8, 1),
    Sketcher.Constraint("Coincident", 8, 2, 0, 1),
    Sketcher.Constraint("Vertical", 0),
    Sketcher.Constraint("Horizontal", 1),
    Sketcher.Constraint("Vertical", 3),
    Sketcher.Constraint("Horizontal", 5),
    Sketcher.Constraint("Vertical", 7),
    Sketcher.Constraint("Horizontal", 8),
    Sketcher.Constraint("Equal", 2, 4),
    Sketcher.Constraint("Equal", 4, 6),
    Sketcher.Constraint("Horizontal", 4, 3, 6, 3),
    Sketcher.Constraint("Horizontal", 3, 2, 6, 2),
    Sketcher.Constraint("Vertical", 2, 3, 4, 3),
    Sketcher.Constraint("Vertical", 1, 2, 4, 2),
    Sketcher.Constraint("Radius", 2, 3.0),
    Sketcher.Constraint("DistanceX", 8, 2, 8, 1, 13.0),
    Sketcher.Constraint("DistanceY", 0, 2, 0, 1, 8.0),
    Sketcher.Constraint("DistanceX", 0, 2, -1, 1, 66.0),
    Sketcher.Constraint("DistanceY", 0, 2, -1, 1, 53.0),
    Sketcher.Constraint("DistanceX", -1, 1, 2, 2, 37.0),
    Sketcher.Constraint("DistanceY", -1, 1, 4, 2, 18.0),
    Sketcher.Constraint("DistanceX", 1, 1, 1, 2, 98.757359),
    Sketcher.Constraint("DistanceX", -1, 1, 2, 3, 34.87868),
])
pocket9 = body.newObject("PartDesign::Pocket", "Pocket008")
pocket9.Profile = sketch10
pocket9.Length = 0.45

# Sketch on XY plane
sketch11 = body.newObject("Sketcher::SketchObject", "Sketch010")
sketch11.AttachmentSupport = (doc.getObject("XY_Plane"), [""])
sketch11.MapMode = "FlatFace"
sketch11.AttachmentOffset = App.Placement(App.Vector(0, 0, 1.95), App.Rotation())
sketch11.addGeometry([
    Part.LineSegment(App.Vector(-54, -45, 0), App.Vector(-66, -45, 0)),  # 0
    Part.LineSegment(App.Vector(-66, -45, 0), App.Vector(-66, -53, 0)),  # 1
    Part.LineSegment(App.Vector(-66, -53, 0), App.Vector(-54, -53, 0)),  # 2
    Part.ArcOfCircle(Part.Circle(App.Vector(-54, -52, 0), App.Vector(0, 0, 1), 1), math.radians(-90), math.radians(0)),  # 3
    Part.LineSegment(App.Vector(-53, -52, 0), App.Vector(-53, -46, 0)),  # 4
    Part.ArcOfCircle(Part.Circle(App.Vector(-54, -46, 0), App.Vector(0, 0, 1), 1), math.radians(0), math.radians(90)),  # 5
], False)
sketch11.addConstraint([
    Sketcher.Constraint("Coincident", 0, 2, 1, 1),
    Sketcher.Constraint("Coincident", 1, 2, 2, 1),
    Sketcher.Constraint("Tangent", 2, 2, 3, 1),
    Sketcher.Constraint("Tangent", 3, 2, 4, 1),
    Sketcher.Constraint("Tangent", 4, 2, 5, 1),
    Sketcher.Constraint("Tangent", 5, 2, 0, 1),
    Sketcher.Constraint("Horizontal", 0),
    Sketcher.Constraint("Vertical", 1),
    Sketcher.Constraint("Horizontal", 2),
    Sketcher.Constraint("Vertical", 4),
    Sketcher.Constraint("Equal", 3, 5),
    Sketcher.Constraint("Radius", 3, 1.0),
    Sketcher.Constraint("DistanceX", 0, 2, 0, 1, 12.0),
    Sketcher.Constraint("DistanceY", 1, 2, 1, 1, 8.0),
    Sketcher.Constraint("DistanceX", 3, 3, -1, 1, 54.0),
    Sketcher.Constraint("DistanceY", 3, 3, -1, 1, 52.0),
])
pocket10 = body.newObject("PartDesign::Pocket", "Pocket009")
pocket10.Profile = sketch11
pocket10.Type = "UpToFirst"
doc.recompute()

fillet = body.newObject("PartDesign::Fillet", "Fillet")
fillet.Base = (pocket10, edges_at(pocket10, [(-34, 66, 1.2), (66, 0, 1.2)]))
fillet.Radius = 5

doc.recompute()
